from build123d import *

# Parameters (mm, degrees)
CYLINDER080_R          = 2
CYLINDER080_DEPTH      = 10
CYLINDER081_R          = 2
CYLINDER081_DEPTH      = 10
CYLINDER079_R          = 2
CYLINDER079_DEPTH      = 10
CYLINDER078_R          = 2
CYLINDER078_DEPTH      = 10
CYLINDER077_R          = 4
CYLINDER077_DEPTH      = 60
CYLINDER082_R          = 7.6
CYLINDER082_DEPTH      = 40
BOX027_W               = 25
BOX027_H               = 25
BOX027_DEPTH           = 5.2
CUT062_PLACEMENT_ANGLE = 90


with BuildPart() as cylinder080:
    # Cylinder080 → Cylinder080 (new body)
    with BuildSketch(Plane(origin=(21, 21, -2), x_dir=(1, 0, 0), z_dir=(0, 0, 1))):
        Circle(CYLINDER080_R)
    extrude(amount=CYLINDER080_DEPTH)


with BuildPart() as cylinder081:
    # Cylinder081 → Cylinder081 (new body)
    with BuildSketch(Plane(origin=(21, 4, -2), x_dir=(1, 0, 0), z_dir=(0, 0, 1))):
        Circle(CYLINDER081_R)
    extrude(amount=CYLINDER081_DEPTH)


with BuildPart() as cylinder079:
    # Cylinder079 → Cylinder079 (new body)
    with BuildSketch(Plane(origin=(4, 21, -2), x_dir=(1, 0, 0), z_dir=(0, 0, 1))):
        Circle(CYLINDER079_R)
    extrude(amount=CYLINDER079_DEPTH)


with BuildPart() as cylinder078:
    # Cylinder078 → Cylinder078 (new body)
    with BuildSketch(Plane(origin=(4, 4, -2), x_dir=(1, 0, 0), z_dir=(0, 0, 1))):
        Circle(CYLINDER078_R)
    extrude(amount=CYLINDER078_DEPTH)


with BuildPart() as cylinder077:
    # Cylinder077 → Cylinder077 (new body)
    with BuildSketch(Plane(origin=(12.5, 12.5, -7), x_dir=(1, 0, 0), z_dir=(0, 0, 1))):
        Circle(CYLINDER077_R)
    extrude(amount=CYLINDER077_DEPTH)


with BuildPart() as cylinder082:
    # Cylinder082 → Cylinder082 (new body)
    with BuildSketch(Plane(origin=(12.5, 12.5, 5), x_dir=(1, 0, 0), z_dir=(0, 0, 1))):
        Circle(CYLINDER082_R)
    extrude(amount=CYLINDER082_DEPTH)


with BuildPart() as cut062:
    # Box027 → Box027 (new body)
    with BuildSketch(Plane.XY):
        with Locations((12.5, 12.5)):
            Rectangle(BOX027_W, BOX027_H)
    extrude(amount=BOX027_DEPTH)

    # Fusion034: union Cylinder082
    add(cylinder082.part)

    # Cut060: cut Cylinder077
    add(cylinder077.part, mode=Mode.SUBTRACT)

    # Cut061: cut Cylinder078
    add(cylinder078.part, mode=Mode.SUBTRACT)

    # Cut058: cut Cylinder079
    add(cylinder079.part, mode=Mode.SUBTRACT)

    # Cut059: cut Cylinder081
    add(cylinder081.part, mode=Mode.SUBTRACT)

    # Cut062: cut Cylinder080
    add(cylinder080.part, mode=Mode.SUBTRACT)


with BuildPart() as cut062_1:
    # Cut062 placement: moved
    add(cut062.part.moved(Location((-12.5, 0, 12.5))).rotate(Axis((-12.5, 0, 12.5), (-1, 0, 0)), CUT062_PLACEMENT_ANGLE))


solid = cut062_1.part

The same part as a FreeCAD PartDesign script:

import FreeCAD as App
import Part
import Sketcher

V = App.Vector

doc = App.newDocument("Part")
body = doc.addObject("PartDesign::Body", "Body")

sketch1 = doc.addObject("Sketcher::SketchObject", "Sketch")
body.addObject(sketch1)
sketch1.AttachmentSupport = (doc.XY_Plane, [""])
sketch1.MapMode = "FlatFace"
sketch1.AttachmentOffset = App.Placement(V(0, 0, -2), App.Rotation())
sketch1.addGeometry(Part.Circle(V(21, 21, 0), V(0, 0, 1), 2), False)
sketch1.addConstraint([
    Sketcher.Constraint("Diameter", 0, 4.0),
    Sketcher.Constraint("DistanceX", -1, 1, 0, 3, 21.0),
    Sketcher.Constraint("DistanceY", -1, 1, 0, 3, 21.0),
])
pad1 = doc.addObject("PartDesign::Pad", "Pad")
body.addObject(pad1)
pad1.Profile = sketch1
pad1.Length = 10
body2 = doc.addObject("PartDesign::Body", "Body001")

sketch2 = doc.addObject("Sketcher::SketchObject", "Sketch001")
body2.addObject(sketch2)
sketch2.AttachmentSupport = (doc.getObject("XY_Plane001"), [""])
sketch2.MapMode = "FlatFace"
sketch2.AttachmentOffset = App.Placement(V(0, 0, -2), App.Rotation())
sketch2.addGeometry(Part.Circle(V(21, 4, 0), V(0, 0, 1), 2), False)
sketch2.addConstraint([
    Sketcher.Constraint("Diameter", 0, 4.0),
    Sketcher.Constraint("DistanceX", -1, 1, 0, 3, 21.0),
    Sketcher.Constraint("DistanceY", -1, 1, 0, 3, 4.0),
])
pad2 = doc.addObject("PartDesign::Pad", "Pad001")
body2.addObject(pad2)
pad2.Profile = sketch2
pad2.Length = 10
body3 = doc.addObject("PartDesign::Body", "Body002")

sketch3 = doc.addObject("Sketcher::SketchObject", "Sketch002")
body3.addObject(sketch3)
sketch3.AttachmentSupport = (doc.getObject("XY_Plane002"), [""])
sketch3.MapMode = "FlatFace"
sketch3.AttachmentOffset = App.Placement(V(0, 0, -2), App.Rotation())
sketch3.addGeometry(Part.Circle(V(4, 21, 0), V(0, 0, 1), 2), False)
sketch3.addConstraint([
    Sketcher.Constraint("Diameter", 0, 4.0),
    Sketcher.Constraint("DistanceX", -1, 1, 0, 3, 4.0),
    Sketcher.Constraint("DistanceY", -1, 1, 0, 3, 21.0),
])
pad3 = doc.addObject("PartDesign::Pad", "Pad002")
body3.addObject(pad3)
pad3.Profile = sketch3
pad3.Length = 10
body4 = doc.addObject("PartDesign::Body", "Body003")

sketch4 = doc.addObject("Sketcher::SketchObject", "Sketch003")
body4.addObject(sketch4)
sketch4.AttachmentSupport = (doc.getObject("XY_Plane003"), [""])
sketch4.MapMode = "FlatFace"
sketch4.AttachmentOffset = App.Placement(V(0, 0, -2), App.Rotation())
sketch4.addGeometry(Part.Circle(V(4, 4, 0), V(0, 0, 1), 2), False)
sketch4.addConstraint([
    Sketcher.Constraint("Diameter", 0, 4.0),
    Sketcher.Constraint("DistanceX", -1, 1, 0, 3, 4.0),
    Sketcher.Constraint("DistanceY", -1, 1, 0, 3, 4.0),
])
pad4 = doc.addObject("PartDesign::Pad", "Pad003")
body4.addObject(pad4)
pad4.Profile = sketch4
pad4.Length = 10
body5 = doc.addObject("PartDesign::Body", "Body004")

sketch5 = doc.addObject("Sketcher::SketchObject", "Sketch004")
body5.addObject(sketch5)
sketch5.AttachmentSupport = (doc.getObject("XY_Plane004"), [""])
sketch5.MapMode = "FlatFace"
sketch5.AttachmentOffset = App.Placement(V(0, 0, -7), App.Rotation())
sketch5.addGeometry(Part.Circle(V(12.5, 12.5, 0), V(0, 0, 1), 4), False)
sketch5.addConstraint([
    Sketcher.Constraint("Diameter", 0, 8.0),
    Sketcher.Constraint("DistanceX", -1, 1, 0, 3, 12.5),
    Sketcher.Constraint("DistanceY", -1, 1, 0, 3, 12.5),
])
pad5 = doc.addObject("PartDesign::Pad", "Pad004")
body5.addObject(pad5)
pad5.Profile = sketch5
pad5.Length = 60
body6 = doc.addObject("PartDesign::Body", "Body005")

sketch6 = doc.addObject("Sketcher::SketchObject", "Sketch005")
body6.addObject(sketch6)
sketch6.AttachmentSupport = (doc.getObject("XY_Plane005"), [""])
sketch6.MapMode = "FlatFace"
sketch6.AttachmentOffset = App.Placement(V(0, 0, 5), App.Rotation())
sketch6.addGeometry(Part.Circle(V(12, 12, 0), V(0, 0, 1), 8), False)
sketch6.addConstraint([
    Sketcher.Constraint("Diameter", 0, 15.2),
    Sketcher.Constraint("DistanceX", -1, 1, 0, 3, 12.5),
    Sketcher.Constraint("DistanceY", -1, 1, 0, 3, 12.5),
])
pad6 = doc.addObject("PartDesign::Pad", "Pad005")
body6.addObject(pad6)
pad6.Profile = sketch6
pad6.Length = 40
body7 = doc.addObject("PartDesign::Body", "Body006")

sketch7 = doc.addObject("Sketcher::SketchObject", "Sketch006")
body7.addObject(sketch7)
sketch7.AttachmentSupport = (doc.getObject("XY_Plane006"), [""])
sketch7.MapMode = "FlatFace"
sketch7.addGeometry([
    Part.LineSegment(V(0, 25, 0), V(0, 0, 0)),
    Part.LineSegment(V(0, 0, 0), V(25, 0, 0)),
    Part.LineSegment(V(25, 0, 0), V(25, 25, 0)),
    Part.LineSegment(V(25, 25, 0), V(0, 25, 0)),
], False)
sketch7.addConstraint([
    Sketcher.Constraint("Coincident", 0, 2, 1, 1),
    Sketcher.Constraint("Coincident", 1, 2, 2, 1),
    Sketcher.Constraint("Coincident", 2, 2, 3, 1),
    Sketcher.Constraint("Coincident", 3, 2, 0, 1),
    Sketcher.Constraint("Vertical", 0),
    Sketcher.Constraint("Horizontal", 1),
    Sketcher.Constraint("Vertical", 2),
    Sketcher.Constraint("Horizontal", 3),
    Sketcher.Constraint("Coincident", 0, 2, -1, 1),
    Sketcher.Constraint("Equal", 3, 0),
    Sketcher.Constraint("DistanceX", 1, 1, 1, 2, 25.0),
])
pad7 = doc.addObject("PartDesign::Pad", "Pad006")
body7.addObject(pad7)
pad7.Profile = sketch7
pad7.Length = 5.2
doc.recompute()

boolean = doc.addObject("PartDesign::Boolean", "Boolean")
body7.addObject(boolean)
boolean.Type = "Fuse"
boolean.addObjects([body6])
doc.recompute()

boolean2 = doc.addObject("PartDesign::Boolean", "Boolean001")
body7.addObject(boolean2)
boolean2.Type = "Cut"
boolean2.addObjects([body5])
doc.recompute()

boolean3 = doc.addObject("PartDesign::Boolean", "Boolean002")
body7.addObject(boolean3)
boolean3.Type = "Cut"
boolean3.addObjects([body4])
doc.recompute()

boolean4 = doc.addObject("PartDesign::Boolean", "Boolean003")
body7.addObject(boolean4)
boolean4.Type = "Cut"
boolean4.addObjects([body3])
doc.recompute()

boolean5 = doc.addObject("PartDesign::Boolean", "Boolean004")
body7.addObject(boolean5)
boolean5.Type = "Cut"
boolean5.addObjects([body2])
doc.recompute()

boolean6 = doc.addObject("PartDesign::Boolean", "Boolean005")
body7.addObject(boolean6)
boolean6.Type = "Cut"
boolean6.addObjects([body])
body8 = doc.addObject("PartDesign::Body", "Body007")
doc.recompute()

body7.Placement = App.Placement(V(-12.5, 0, 12.5), App.Rotation(V(-1, 0, 0), 90))
boolean7 = doc.addObject("PartDesign::Boolean", "Boolean006")
body8.addObject(boolean7)
boolean7.Type = "Fuse"
boolean7.addObjects([body7])

doc.recompute()
